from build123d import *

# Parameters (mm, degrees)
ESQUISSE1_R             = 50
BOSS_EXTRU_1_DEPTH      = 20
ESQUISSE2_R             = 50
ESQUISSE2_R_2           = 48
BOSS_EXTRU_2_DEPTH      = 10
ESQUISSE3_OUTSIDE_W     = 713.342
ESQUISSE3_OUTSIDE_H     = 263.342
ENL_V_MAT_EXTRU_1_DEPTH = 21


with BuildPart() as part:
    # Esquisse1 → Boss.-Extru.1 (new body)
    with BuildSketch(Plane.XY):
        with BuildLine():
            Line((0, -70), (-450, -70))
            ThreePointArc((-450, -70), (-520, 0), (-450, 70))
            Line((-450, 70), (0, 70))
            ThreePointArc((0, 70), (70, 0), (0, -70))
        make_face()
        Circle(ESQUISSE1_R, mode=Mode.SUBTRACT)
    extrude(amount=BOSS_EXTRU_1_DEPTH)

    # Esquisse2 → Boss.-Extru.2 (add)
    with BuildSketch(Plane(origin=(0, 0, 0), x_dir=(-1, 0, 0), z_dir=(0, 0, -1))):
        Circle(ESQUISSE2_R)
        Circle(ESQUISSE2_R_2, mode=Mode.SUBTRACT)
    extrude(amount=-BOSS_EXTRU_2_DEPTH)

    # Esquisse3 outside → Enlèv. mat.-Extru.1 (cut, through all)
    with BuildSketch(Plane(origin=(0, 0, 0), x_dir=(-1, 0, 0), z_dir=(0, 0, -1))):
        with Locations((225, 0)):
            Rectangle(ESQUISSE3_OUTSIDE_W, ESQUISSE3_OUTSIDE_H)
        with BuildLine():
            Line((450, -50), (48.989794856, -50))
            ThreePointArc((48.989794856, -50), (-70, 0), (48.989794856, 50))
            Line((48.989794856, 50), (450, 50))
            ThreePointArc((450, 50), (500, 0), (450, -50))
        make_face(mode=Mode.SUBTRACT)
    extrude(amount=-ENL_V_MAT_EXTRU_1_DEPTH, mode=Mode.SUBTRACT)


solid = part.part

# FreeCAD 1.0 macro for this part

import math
import FreeCAD as App
import Part
import Sketcher

V = App.Vector
Q = App.Units.Quantity

doc = App.newDocument("Part")
body = doc.addObject("PartDesign::Body", "Body")

sketch1 = body.newObject("Sketcher::SketchObject", "Sketch")
sketch1.AttachmentSupport = (doc.getObject("XY_Plane"), [""])
sketch1.MapMode = "FlatFace"
sketch1.addGeometry([
    Part.LineSegment(V(-450, -70, 0), V(0, -70, 0)),
    Part.ArcOfCircle(Part.Circle(V(0, 0, 0), V(0, 0, 1), 70), math.radians(-90), math.radians(90)),
    Part.LineSegment(V(0, 70, 0), V(-450, 70, 0)),
    Part.ArcOfCircle(Part.Circle(V(-450, 0, 0), V(0, 0, 1), 70), math.radians(90), math.radians(270)),
    Part.Circle(V(0, 0, 0), V(0, 0, 1), 50),
], False)
sketch1.addConstraint([
    Sketcher.Constraint("Tangent", 0, 2, 1, 1),
    Sketcher.Constraint("Tangent", 1, 2, 2, 1),
    Sketcher.Constraint("Tangent", 2, 2, 3, 1),
    Sketcher.Constraint("Tangent", 3, 2, 0, 1),
    Sketcher.Constraint("Horizontal", 0),
    Sketcher.Constraint("Horizontal", 2),
    Sketcher.Constraint("Coincident", 1, 3, -1, 1),
    Sketcher.Constraint("Coincident", 4, 3, -1, 1),
    Sketcher.Constraint("Diameter", 4, Q("100 mm")),
    Sketcher.Constraint("Radius", 1, Q("70 mm")),
    Sketcher.Constraint("DistanceX", 0, 1, 0, 2, Q("450 mm")),
])
pad1 = body.newObject("PartDesign::Pad", "Pad")
pad1.Profile = sketch1
pad1.Length = 20

sketch2 = body.newObject("Sketcher::SketchObject", "Sketch001")
sketch2.AttachmentSupport = (doc.getObject("XY_Plane"), [""])
sketch2.MapMode = "FlatFace"
sketch2.addGeometry([
    Part.Circle(V(0, 0, 0), V(0, 0, 1), 50),
    Part.Circle(V(0, 0, 0), V(0, 0, 1), 48),
], False)
sketch2.addConstraint([
    Sketcher.Constraint("Coincident", 0, 3, -1, 1),
    Sketcher.Constraint("Coincident", 1, 3, -1, 1),
    Sketcher.Constraint("Diameter", 0, Q("100 mm")),
    Sketcher.Constraint("Diameter", 1, Q("96 mm")),
])
pad2 = body.newObject("PartDesign::Pad", "Pad001")
pad2.Profile = sketch2
pad2.Length = 10

sketch3 = body.newObject("Sketcher::SketchObject", "Sketch002")
sketch3.AttachmentSupport = (doc.getObject("XY_Plane"), [""])
sketch3.MapMode = "FlatFace"
sketch3.addGeometry([
    Part.LineSegment(V(131.671, 131.671, 0), V(131.671, -131.671, 0)),
    Part.LineSegment(V(131.671, -131.671, 0), V(-581.671, -131.671, 0)),
    Part.LineSegment(V(-581.671, -131.671, 0), V(-581.671, 131.671, 0)),
    Part.LineSegment(V(-581.671, 131.671, 0), V(131.671, 131.671, 0)),
    Part.ArcOfCircle(Part.Circle(V(-450, 0, 0), V(0, 0, 1), 50), math.radians(90), math.radians(270)),
    Part.LineSegment(V(-450, -50, 0), V(-48.989795, -50, 0)),
    Part.ArcOfCircle(Part.Circle(V(0, 0, 0), V(0, 0, 1), 70), math.radians(-134.415309), math.radians(134.415309)),
    Part.LineSegment(V(-48.989795, 50, 0), V(-450, 50, 0)),
], False)
sketch3.addConstraint([
    Sketcher.Constraint("Coincident", 0, 2, 1, 1),
    Sketcher.Constraint("Coincident", 1, 2, 2, 1),
    Sketcher.Constraint("Coincident", 2, 2, 3, 1),
    Sketcher.Constraint("Coincident", 3, 2, 0, 1),
    Sketcher.Constraint("Tangent", 4, 2, 5, 1),
    Sketcher.Constraint("Coincident", 5, 2, 6, 1),
    Sketcher.Constraint("Coincident", 6, 2, 7, 1),
    Sketcher.Constraint("Tangent", 7, 2, 4, 1),
    Sketcher.Constraint("Vertical", 0),
    Sketcher.Constraint("Horizontal", 1),
    Sketcher.Constraint("Vertical", 2),
    Sketcher.Constraint("Horizontal", 3),
    Sketcher.Constraint("Horizontal", 5),
    Sketcher.Constraint("Horizontal", 7),
    Sketcher.Constraint("Coincident", 6, 3, -1, 1),
    Sketcher.Constraint("PointOnObject", 4, 3, -1),
    Sketcher.Constraint("Radius", 4, Q("50 mm")),
    Sketcher.Constraint("Radius", 6, Q("70 mm")),
    Sketcher.Constraint("DistanceX", 4, 3, -1, 1, Q("450 mm")),
    Sketcher.Constraint("DistanceX", 1, 2, 1, 1, Q("713.342 mm")),
    Sketcher.Constraint("DistanceY", 0, 2, 0, 1, Q("263.342 mm")),
    Sketcher.Constraint("DistanceX", -1, 1, 0, 2, Q("131.671 mm")),
    Sketcher.Constraint("DistanceY", 0, 2, -1, 1, Q("131.671 mm")),
])
pocket1 = body.newObject("PartDesign::Pocket", "Pocket")
pocket1.Profile = sketch3
pocket1.Type = "ThroughAll"
pocket1.Reversed = True

doc.recompute()
